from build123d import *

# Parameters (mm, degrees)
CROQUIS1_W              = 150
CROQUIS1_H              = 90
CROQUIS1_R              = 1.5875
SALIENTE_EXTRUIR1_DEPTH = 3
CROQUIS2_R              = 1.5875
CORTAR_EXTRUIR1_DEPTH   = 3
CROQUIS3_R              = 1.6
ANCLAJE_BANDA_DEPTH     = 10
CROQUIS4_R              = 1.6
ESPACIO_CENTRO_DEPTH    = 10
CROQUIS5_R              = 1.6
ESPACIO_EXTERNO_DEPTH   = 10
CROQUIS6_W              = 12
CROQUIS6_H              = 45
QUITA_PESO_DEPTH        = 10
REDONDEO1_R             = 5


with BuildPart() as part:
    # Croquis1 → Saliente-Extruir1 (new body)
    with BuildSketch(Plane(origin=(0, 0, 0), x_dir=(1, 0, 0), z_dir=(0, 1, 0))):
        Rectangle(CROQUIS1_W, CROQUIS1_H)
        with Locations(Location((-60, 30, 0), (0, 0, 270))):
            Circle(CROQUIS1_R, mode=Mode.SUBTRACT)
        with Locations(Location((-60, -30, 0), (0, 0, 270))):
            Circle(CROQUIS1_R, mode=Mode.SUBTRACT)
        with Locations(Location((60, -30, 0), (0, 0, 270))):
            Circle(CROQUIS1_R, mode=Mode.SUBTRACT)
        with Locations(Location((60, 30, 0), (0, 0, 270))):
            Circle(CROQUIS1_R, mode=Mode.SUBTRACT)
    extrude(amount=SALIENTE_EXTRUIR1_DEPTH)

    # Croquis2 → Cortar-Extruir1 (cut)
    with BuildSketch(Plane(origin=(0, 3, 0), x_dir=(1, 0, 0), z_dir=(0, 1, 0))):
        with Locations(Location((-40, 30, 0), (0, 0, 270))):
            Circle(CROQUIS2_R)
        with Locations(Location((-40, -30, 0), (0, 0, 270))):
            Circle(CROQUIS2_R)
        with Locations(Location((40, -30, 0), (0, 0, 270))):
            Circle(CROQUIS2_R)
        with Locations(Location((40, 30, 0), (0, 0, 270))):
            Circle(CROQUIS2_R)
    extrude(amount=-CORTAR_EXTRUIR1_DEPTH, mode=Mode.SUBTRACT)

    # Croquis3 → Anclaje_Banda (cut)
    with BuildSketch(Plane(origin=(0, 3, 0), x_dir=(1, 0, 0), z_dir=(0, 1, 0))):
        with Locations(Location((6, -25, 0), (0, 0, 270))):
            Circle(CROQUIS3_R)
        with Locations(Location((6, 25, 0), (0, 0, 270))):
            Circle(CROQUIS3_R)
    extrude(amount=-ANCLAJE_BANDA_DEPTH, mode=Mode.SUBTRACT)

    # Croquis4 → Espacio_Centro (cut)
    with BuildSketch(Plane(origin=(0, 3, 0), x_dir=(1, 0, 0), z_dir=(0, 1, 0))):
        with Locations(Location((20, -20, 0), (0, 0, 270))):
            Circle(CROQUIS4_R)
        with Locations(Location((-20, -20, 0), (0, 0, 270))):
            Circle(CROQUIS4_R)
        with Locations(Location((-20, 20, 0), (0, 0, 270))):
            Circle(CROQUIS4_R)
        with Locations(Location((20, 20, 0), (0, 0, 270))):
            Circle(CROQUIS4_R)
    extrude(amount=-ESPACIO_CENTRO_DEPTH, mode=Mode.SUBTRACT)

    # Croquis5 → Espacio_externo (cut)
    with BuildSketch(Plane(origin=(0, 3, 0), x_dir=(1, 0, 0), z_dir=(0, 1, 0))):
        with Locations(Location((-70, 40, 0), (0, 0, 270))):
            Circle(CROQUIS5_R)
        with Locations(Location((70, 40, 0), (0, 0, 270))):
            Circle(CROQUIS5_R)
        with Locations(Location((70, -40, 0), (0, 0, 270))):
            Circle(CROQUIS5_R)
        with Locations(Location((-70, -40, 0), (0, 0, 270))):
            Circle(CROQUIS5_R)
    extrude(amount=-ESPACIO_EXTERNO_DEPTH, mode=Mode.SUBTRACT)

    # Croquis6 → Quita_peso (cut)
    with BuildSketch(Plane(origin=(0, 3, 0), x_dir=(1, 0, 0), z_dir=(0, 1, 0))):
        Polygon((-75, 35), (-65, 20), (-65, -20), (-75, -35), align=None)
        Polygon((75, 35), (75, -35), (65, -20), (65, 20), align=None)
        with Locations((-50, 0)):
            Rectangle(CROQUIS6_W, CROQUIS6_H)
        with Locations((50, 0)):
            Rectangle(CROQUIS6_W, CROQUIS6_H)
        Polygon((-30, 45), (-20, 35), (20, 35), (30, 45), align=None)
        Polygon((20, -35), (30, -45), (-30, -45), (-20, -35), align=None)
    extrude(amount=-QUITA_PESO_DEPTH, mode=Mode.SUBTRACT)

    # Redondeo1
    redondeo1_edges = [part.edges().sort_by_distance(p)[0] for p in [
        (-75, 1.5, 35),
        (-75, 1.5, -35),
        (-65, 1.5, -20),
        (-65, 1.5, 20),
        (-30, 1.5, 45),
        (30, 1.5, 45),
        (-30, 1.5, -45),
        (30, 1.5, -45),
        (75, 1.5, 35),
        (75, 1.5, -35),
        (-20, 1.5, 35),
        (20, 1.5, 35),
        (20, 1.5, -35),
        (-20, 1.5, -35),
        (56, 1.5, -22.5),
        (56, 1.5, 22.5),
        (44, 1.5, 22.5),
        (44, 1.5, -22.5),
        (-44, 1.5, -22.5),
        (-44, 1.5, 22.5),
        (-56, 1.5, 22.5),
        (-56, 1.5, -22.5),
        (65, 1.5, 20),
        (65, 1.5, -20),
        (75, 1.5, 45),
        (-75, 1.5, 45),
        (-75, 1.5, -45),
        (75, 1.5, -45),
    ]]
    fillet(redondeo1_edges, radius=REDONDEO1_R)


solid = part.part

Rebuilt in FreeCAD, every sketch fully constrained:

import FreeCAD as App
import Part
import Sketcher


def edges_at(feature, points):
    """Names of the edges that pass closest to the given points."""
    edges = feature.Shape.Edges
    near = lambda p: min(range(len(edges)), key=lambda i: edges[i].distToShape(Part.Vertex(*p))[0])
    return sorted({f"Edge{near(p) + 1}" for p in points})


def add_polygon(sketch, points):
    """Adds a closed chain of lines whose ends are joined by coincident constraints."""
    first, n = sketch.GeometryCount, len(points)
    for a, b in zip(points, points[1:] + points[:1]):
        sketch.addGeometry(Part.LineSegment(App.Vector(*a, 0), App.Vector(*b, 0)), False)
    for i in range(n):
        sketch.addConstraint(Sketcher.Constraint("Coincident", first + i, 2, first + (i + 1) % n, 1))

doc = App.newDocument("Part")
body = doc.addObject("PartDesign::Body", "Body")

# Sketch on XZ plane
sketch1 = body.newObject("Sketcher::SketchObject", "Sketch")
sketch1.AttachmentSupport = (doc.getObject("XZ_Plane"), [""])
sketch1.MapMode = "FlatFace"
add_polygon(sketch1, [(-75, -45), (-75, 45), (75, 45), (75, -45)])  # lines 0-3
sketch1.addGeometry(Part.Circle(App.Vector(-60, 30, 0), App.Vector(0, 0, 1), 1.5875), False)  # 4
sketch1.addGeometry(Part.Circle(App.Vector(60, 30, 0), App.Vector(0, 0, 1), 1.5875), False)  # 5
sketch1.addGeometry(Part.Circle(App.Vector(-60, -30, 0), App.Vector(0, 0, 1), 1.5875), False)  # 6
sketch1.addGeometry(Part.Circle(App.Vector(60, -30, 0), App.Vector(0, 0, 1), 1.5875), False)  # 7
sketch1.addConstraint([
    Sketcher.Constraint("Vertical", 0),
    Sketcher.Constraint("Horizontal", 1),
    Sketcher.Constraint("Vertical", 2),
    Sketcher.Constraint("Horizontal", 3),
    Sketcher.Constraint("Equal", 4, 5),
    Sketcher.Constraint("Equal", 5, 6),
    Sketcher.Constraint("Equal", 6, 7),
    Sketcher.Constraint("Symmetric", 5, 3, 6, 3, -1, 1),
    Sketcher.Constraint("Symmetric", 4, 3, 7, 3, -1, 1),
    Sketcher.Constraint("Symmetric", 0, 2, 2, 2, -1, 1),
    Sketcher.Constraint("Symmetric", 4, 3, 5, 3, -2),
    Sketcher.Constraint("DistanceX", 1, 1, 1, 2, 150.0),
    Sketcher.Constraint("DistanceY", 0, 1, 0, 2, 90.0),
    Sketcher.Constraint("Diameter", 4, 3.175),
    Sketcher.Constraint("DistanceX", 4, 3, -1, 1, 60.0),
    Sketcher.Constraint("DistanceY", -1, 1, 4, 3, 30.0),
])
pad1 = body.newObject("PartDesign::Pad", "Pad")
pad1.Profile = sketch1
pad1.Length = 3
pad1.Reversed = True

# Sketch on XZ plane
sketch2 = body.newObject("Sketcher::SketchObject", "Sketch001")
sketch2.AttachmentSupport = (doc.getObject("XZ_Plane"), [""])
sketch2.MapMode = "FlatFace"
sketch2.AttachmentOffset = App.Placement(App.Vector(0, 0, -3), App.Rotation())
sketch2.addGeometry([
    Part.Circle(App.Vector(-40, -30, 0), App.Vector(0, 0, 1), 1.5875),
    Part.Circle(App.Vector(-40, 30, 0), App.Vector(0, 0, 1), 1.5875),
    Part.Circle(App.Vector(40, 30, 0), App.Vector(0, 0, 1), 1.5875),
    Part.Circle(App.Vector(40, -30, 0), App.Vector(0, 0, 1), 1.5875),
], False)
sketch2.addConstraint([
    Sketcher.Constraint("Equal", 0, 1),
    Sketcher.Constraint("Equal", 1, 2),
    Sketcher.Constraint("Equal", 2, 3),
    Sketcher.Constraint("Symmetric", 0, 3, 2, 3, -1, 1),
    Sketcher.Constraint("Symmetric", 1, 3, 3, 3, -1, 1),
    Sketcher.Constraint("Symmetric", 1, 3, 2, 3, -2),
    Sketcher.Constraint("Diameter", 0, 3.175),
    Sketcher.Constraint("DistanceX", 0, 3, -1, 1, 40.0),
    Sketcher.Constraint("DistanceY", 0, 3, -1, 1, 30.0),
])
pocket1 = body.newObject("PartDesign::Pocket", "Pocket")
pocket1.Profile = sketch2
pocket1.Length = 3
pocket1.Reversed = True

# Sketch on XZ plane
sketch3 = body.newObject("Sketcher::SketchObject", "Sketch002")
sketch3.AttachmentSupport = (doc.getObject("XZ_Plane"), [""])
sketch3.MapMode = "FlatFace"
sketch3.AttachmentOffset = App.Placement(App.Vector(0, 0, -3), App.Rotation())
sketch3.addGeometry([
    Part.Circle(App.Vector(6, 25, 0), App.Vector(0, 0, 1), 1.6),
    Part.Circle(App.Vector(6, -25, 0), App.Vector(0, 0, 1), 1.6),
], False)
sketch3.addConstraint([
    Sketcher.Constraint("Equal", 0, 1),
    Sketcher.Constraint("Symmetric", 0, 3, 1, 3, -1),
    Sketcher.Constraint("Diameter", 0, 3.2),
    Sketcher.Constraint("DistanceX", -1, 1, 0, 3, 6.0),
    Sketcher.Constraint("DistanceY", -1, 1, 0, 3, 25.0),
])
pocket2 = body.newObject("PartDesign::Pocket", "Pocket001")
pocket2.Profile = sketch3
pocket2.Length = 10
pocket2.Reversed = True

# Sketch on XZ plane
sketch4 = body.newObject("Sketcher::SketchObject", "Sketch003")
sketch4.AttachmentSupport = (doc.getObject("XZ_Plane"), [""])
sketch4.MapMode = "FlatFace"
sketch4.AttachmentOffset = App.Placement(App.Vector(0, 0, -3), App.Rotation())
sketch4.addGeometry([
    Part.Circle(App.Vector(20, 20, 0), App.Vector(0, 0, 1), 1.6),
    Part.Circle(App.Vector(-20, 20, 0), App.Vector(0, 0, 1), 1.6),
    Part.Circle(App.Vector(-20, -20, 0), App.Vector(0, 0, 1), 1.6),
    Part.Circle(App.Vector(20, -20, 0), App.Vector(0, 0, 1), 1.6),
], False)
sketch4.addConstraint([
    Sketcher.Constraint("Equal", 0, 1),
    Sketcher.Constraint("Equal", 1, 2),
    Sketcher.Constraint("Equal", 2, 3),
    Sketcher.Constraint("Symmetric", 0, 3, 2, 3, -1, 1),
    Sketcher.Constraint("Symmetric", 1, 3, 3, 3, -1, 1),
    Sketcher.Constraint("Symmetric", 0, 3, 1, 3, -2),
    Sketcher.Constraint("Diameter", 0, 3.2),
    Sketcher.Constraint("DistanceX", -1, 1, 0, 3, 20.0),
    Sketcher.Constraint("DistanceY", -1, 1, 0, 3, 20.0),
])
pocket3 = body.newObject("PartDesign::Pocket", "Pocket002")
pocket3.Profile = sketch4
pocket3.Length = 10
pocket3.Reversed = True

# Sketch on XZ plane
sketch5 = body.newObject("Sketcher::SketchObject", "Sketch004")
sketch5.AttachmentSupport = (doc.getObject("XZ_Plane"), [""])
sketch5.MapMode = "FlatFace"
sketch5.AttachmentOffset = App.Placement(App.Vector(0, 0, -3), App.Rotation())
sketch5.addGeometry([
    Part.Circle(App.Vector(-70, -40, 0), App.Vector(0, 0, 1), 1.6),
    Part.Circle(App.Vector(70, -40, 0), App.Vector(0, 0, 1), 1.6),
    Part.Circle(App.Vector(70, 40, 0), App.Vector(0, 0, 1), 1.6),
    Part.Circle(App.Vector(-70, 40, 0), App.Vector(0, 0, 1), 1.6),
], False)
sketch5.addConstraint([
    Sketcher.Constraint("Equal", 0, 1),
    Sketcher.Constraint("Equal", 1, 2),
    Sketcher.Constraint("Equal", 2, 3),
    Sketcher.Constraint("Symmetric", 0, 3, 2, 3, -1, 1),
    Sketcher.Constraint("Symmetric", 1, 3, 3, 3, -1, 1),
    Sketcher.Constraint("Symmetric", 0, 3, 1, 3, -2),
    Sketcher.Constraint("Diameter", 0, 3.2),
    Sketcher.Constraint("DistanceX", 0, 3, -1, 1, 70.0),
    Sketcher.Constraint("DistanceY", 0, 3, -1, 1, 40.0),
])
pocket4 = body.newObject("PartDesign::Pocket", "Pocket003")
pocket4.Profile = sketch5
pocket4.Length = 10
pocket4.Reversed = True

# Sketch on XZ plane
sketch6 = body.newObject("Sketcher::SketchObject", "Sketch005")
sketch6.AttachmentSupport = (doc.getObject("XZ_Plane"), [""])
sketch6.MapMode = "FlatFace"
sketch6.AttachmentOffset = App.Placement(App.Vector(0, 0, -3), App.Rotation())
add_polygon(sketch6, [(-65, -20), (-75, -35), (-75, 35), (-65, 20)])  # lines 0-3
add_polygon(sketch6, [(75, 35), (75, -35), (65, -20), (65, 20)])  # lines 4-7
add_polygon(sketch6, [(-56, -22.5), (-56, 22.5), (-44, 22.5), (-44, -22.5)])  # lines 8-11
add_polygon(sketch6, [(44, -22.5), (44, 22.5), (56, 22.5), (56, -22.5)])  # lines 12-15
add_polygon(sketch6, [(-30, -45), (-20, -35), (20, -35), (30, -45)])  # lines 16-19
add_polygon(sketch6, [(30, 45), (20, 35), (-20, 35), (-30, 45)])  # lines 20-23
sketch6.addConstraint([
    Sketcher.Constraint("Vertical", 1),
    Sketcher.Constraint("Vertical", 3),
    Sketcher.Constraint("Vertical", 4),
    Sketcher.Constraint("Vertical", 6),
    Sketcher.Constraint("Vertical", 8),
    Sketcher.Constraint("Horizontal", 9),
    Sketcher.Constraint("Vertical", 10),
    Sketcher.Constraint("Horizontal", 11),
    Sketcher.Constraint("Vertical", 12),
    Sketcher.Constraint("Horizontal", 13),
    Sketcher.Constraint("Vertical", 14),
    Sketcher.Constraint("Horizontal", 15),
    Sketcher.Constraint("Horizontal", 17),
    Sketcher.Constraint("Horizontal", 19),
    Sketcher.Constraint("Horizontal", 21),
    Sketcher.Constraint("Horizontal", 23),
    Sketcher.Constraint("Symmetric", 1, 2, 4, 2, -1, 1),
    Sketcher.Constraint("Symmetric", 2, 2, 5, 2, -1, 1),
    Sketcher.Constraint("Symmetric", 10, 2, 12, 2, -1, 1),
    Sketcher.Constraint("Symmetric", 8, 2, 14, 2, -1, 1),
    Sketcher.Constraint("Symmetric", 16, 2, 20, 2, -1, 1),
    Sketcher.Constraint("Symmetric", 18, 2, 22, 2, -1, 1),
    Sketcher.Constraint("Parallel", 0, 7),
    Sketcher.Constraint("Perpendicular", 16, 18),
    Sketcher.Constraint("Perpendicular", 18, 20),
    Sketcher.Constraint("Perpendicular", 20, 22),
    Sketcher.Constraint("Horizontal", 0, 2, 4, 2),
    Sketcher.Constraint("Horizontal", 3, 2, 5, 2),
    Sketcher.Constraint("Horizontal", 2, 2, 6, 2),
    Sketcher.Constraint("Horizontal", 9, 2, 12, 2),
    Sketcher.Constraint("Horizontal", 4, 2, 16, 2),
    Sketcher.Constraint("Vertical", 17, 2, 20, 2),
    Sketcher.Constraint("Vertical", 19, 2, 22, 2),
    Sketcher.Constraint("Equal", 21, 3),
    Sketcher.Constraint("DistanceX", 9, 1, 9, 2, 12.0),
    Sketcher.Constraint("DistanceX", 17, 1, 17, 2, 40.0),
    Sketcher.Constraint("DistanceX", 19, 2, 19, 1, 60.0),
    Sketcher.Constraint("DistanceY", 1, 1, 1, 2, 70.0),
    Sketcher.Constraint("DistanceY", 8, 1, 8, 2, 45.0),
    Sketcher.Constraint("DistanceX", 0, 2, -1, 1, 75.0),
    Sketcher.Constraint("DistanceX", 2, 2, -1, 1, 65.0),
    Sketcher.Constraint("DistanceX", 8, 2, -1, 1, 56.0),
])
pocket5 = body.newObject("PartDesign::Pocket", "Pocket004")
pocket5.Profile = sketch6
pocket5.Length = 10
pocket5.Reversed = True
doc.recompute()

fillet = body.newObject("PartDesign::Fillet", "Fillet")
fillet.Base = (pocket5, edges_at(pocket5, [
    (-75, 1.5, 35),
    (-75, 1.5, -35),
    (-65, 1.5, -20),
    (-65, 1.5, 20),
    (-30, 1.5, 45),
    (30, 1.5, 45),
    (-30, 1.5, -45),
    (30, 1.5, -45),
    (75, 1.5, 35),
    (75, 1.5, -35),
    (-20, 1.5, 35),
    (20, 1.5, 35),
    (20, 1.5, -35),
    (-20, 1.5, -35),
    (56, 1.5, -22.5),
    (56, 1.5, 22.5),
    (44, 1.5, 22.5),
    (44, 1.5, -22.5),
    (-44, 1.5, -22.5),
    (-44, 1.5, 22.5),
    (-56, 1.5, 22.5),
    (-56, 1.5, -22.5),
    (65, 1.5, 20),
    (65, 1.5, -20),
    (75, 1.5, 45),
    (-75, 1.5, 45),
    (-75, 1.5, -45),
    (75, 1.5, -45),
]))
fillet.Radius = 5

doc.recompute()
